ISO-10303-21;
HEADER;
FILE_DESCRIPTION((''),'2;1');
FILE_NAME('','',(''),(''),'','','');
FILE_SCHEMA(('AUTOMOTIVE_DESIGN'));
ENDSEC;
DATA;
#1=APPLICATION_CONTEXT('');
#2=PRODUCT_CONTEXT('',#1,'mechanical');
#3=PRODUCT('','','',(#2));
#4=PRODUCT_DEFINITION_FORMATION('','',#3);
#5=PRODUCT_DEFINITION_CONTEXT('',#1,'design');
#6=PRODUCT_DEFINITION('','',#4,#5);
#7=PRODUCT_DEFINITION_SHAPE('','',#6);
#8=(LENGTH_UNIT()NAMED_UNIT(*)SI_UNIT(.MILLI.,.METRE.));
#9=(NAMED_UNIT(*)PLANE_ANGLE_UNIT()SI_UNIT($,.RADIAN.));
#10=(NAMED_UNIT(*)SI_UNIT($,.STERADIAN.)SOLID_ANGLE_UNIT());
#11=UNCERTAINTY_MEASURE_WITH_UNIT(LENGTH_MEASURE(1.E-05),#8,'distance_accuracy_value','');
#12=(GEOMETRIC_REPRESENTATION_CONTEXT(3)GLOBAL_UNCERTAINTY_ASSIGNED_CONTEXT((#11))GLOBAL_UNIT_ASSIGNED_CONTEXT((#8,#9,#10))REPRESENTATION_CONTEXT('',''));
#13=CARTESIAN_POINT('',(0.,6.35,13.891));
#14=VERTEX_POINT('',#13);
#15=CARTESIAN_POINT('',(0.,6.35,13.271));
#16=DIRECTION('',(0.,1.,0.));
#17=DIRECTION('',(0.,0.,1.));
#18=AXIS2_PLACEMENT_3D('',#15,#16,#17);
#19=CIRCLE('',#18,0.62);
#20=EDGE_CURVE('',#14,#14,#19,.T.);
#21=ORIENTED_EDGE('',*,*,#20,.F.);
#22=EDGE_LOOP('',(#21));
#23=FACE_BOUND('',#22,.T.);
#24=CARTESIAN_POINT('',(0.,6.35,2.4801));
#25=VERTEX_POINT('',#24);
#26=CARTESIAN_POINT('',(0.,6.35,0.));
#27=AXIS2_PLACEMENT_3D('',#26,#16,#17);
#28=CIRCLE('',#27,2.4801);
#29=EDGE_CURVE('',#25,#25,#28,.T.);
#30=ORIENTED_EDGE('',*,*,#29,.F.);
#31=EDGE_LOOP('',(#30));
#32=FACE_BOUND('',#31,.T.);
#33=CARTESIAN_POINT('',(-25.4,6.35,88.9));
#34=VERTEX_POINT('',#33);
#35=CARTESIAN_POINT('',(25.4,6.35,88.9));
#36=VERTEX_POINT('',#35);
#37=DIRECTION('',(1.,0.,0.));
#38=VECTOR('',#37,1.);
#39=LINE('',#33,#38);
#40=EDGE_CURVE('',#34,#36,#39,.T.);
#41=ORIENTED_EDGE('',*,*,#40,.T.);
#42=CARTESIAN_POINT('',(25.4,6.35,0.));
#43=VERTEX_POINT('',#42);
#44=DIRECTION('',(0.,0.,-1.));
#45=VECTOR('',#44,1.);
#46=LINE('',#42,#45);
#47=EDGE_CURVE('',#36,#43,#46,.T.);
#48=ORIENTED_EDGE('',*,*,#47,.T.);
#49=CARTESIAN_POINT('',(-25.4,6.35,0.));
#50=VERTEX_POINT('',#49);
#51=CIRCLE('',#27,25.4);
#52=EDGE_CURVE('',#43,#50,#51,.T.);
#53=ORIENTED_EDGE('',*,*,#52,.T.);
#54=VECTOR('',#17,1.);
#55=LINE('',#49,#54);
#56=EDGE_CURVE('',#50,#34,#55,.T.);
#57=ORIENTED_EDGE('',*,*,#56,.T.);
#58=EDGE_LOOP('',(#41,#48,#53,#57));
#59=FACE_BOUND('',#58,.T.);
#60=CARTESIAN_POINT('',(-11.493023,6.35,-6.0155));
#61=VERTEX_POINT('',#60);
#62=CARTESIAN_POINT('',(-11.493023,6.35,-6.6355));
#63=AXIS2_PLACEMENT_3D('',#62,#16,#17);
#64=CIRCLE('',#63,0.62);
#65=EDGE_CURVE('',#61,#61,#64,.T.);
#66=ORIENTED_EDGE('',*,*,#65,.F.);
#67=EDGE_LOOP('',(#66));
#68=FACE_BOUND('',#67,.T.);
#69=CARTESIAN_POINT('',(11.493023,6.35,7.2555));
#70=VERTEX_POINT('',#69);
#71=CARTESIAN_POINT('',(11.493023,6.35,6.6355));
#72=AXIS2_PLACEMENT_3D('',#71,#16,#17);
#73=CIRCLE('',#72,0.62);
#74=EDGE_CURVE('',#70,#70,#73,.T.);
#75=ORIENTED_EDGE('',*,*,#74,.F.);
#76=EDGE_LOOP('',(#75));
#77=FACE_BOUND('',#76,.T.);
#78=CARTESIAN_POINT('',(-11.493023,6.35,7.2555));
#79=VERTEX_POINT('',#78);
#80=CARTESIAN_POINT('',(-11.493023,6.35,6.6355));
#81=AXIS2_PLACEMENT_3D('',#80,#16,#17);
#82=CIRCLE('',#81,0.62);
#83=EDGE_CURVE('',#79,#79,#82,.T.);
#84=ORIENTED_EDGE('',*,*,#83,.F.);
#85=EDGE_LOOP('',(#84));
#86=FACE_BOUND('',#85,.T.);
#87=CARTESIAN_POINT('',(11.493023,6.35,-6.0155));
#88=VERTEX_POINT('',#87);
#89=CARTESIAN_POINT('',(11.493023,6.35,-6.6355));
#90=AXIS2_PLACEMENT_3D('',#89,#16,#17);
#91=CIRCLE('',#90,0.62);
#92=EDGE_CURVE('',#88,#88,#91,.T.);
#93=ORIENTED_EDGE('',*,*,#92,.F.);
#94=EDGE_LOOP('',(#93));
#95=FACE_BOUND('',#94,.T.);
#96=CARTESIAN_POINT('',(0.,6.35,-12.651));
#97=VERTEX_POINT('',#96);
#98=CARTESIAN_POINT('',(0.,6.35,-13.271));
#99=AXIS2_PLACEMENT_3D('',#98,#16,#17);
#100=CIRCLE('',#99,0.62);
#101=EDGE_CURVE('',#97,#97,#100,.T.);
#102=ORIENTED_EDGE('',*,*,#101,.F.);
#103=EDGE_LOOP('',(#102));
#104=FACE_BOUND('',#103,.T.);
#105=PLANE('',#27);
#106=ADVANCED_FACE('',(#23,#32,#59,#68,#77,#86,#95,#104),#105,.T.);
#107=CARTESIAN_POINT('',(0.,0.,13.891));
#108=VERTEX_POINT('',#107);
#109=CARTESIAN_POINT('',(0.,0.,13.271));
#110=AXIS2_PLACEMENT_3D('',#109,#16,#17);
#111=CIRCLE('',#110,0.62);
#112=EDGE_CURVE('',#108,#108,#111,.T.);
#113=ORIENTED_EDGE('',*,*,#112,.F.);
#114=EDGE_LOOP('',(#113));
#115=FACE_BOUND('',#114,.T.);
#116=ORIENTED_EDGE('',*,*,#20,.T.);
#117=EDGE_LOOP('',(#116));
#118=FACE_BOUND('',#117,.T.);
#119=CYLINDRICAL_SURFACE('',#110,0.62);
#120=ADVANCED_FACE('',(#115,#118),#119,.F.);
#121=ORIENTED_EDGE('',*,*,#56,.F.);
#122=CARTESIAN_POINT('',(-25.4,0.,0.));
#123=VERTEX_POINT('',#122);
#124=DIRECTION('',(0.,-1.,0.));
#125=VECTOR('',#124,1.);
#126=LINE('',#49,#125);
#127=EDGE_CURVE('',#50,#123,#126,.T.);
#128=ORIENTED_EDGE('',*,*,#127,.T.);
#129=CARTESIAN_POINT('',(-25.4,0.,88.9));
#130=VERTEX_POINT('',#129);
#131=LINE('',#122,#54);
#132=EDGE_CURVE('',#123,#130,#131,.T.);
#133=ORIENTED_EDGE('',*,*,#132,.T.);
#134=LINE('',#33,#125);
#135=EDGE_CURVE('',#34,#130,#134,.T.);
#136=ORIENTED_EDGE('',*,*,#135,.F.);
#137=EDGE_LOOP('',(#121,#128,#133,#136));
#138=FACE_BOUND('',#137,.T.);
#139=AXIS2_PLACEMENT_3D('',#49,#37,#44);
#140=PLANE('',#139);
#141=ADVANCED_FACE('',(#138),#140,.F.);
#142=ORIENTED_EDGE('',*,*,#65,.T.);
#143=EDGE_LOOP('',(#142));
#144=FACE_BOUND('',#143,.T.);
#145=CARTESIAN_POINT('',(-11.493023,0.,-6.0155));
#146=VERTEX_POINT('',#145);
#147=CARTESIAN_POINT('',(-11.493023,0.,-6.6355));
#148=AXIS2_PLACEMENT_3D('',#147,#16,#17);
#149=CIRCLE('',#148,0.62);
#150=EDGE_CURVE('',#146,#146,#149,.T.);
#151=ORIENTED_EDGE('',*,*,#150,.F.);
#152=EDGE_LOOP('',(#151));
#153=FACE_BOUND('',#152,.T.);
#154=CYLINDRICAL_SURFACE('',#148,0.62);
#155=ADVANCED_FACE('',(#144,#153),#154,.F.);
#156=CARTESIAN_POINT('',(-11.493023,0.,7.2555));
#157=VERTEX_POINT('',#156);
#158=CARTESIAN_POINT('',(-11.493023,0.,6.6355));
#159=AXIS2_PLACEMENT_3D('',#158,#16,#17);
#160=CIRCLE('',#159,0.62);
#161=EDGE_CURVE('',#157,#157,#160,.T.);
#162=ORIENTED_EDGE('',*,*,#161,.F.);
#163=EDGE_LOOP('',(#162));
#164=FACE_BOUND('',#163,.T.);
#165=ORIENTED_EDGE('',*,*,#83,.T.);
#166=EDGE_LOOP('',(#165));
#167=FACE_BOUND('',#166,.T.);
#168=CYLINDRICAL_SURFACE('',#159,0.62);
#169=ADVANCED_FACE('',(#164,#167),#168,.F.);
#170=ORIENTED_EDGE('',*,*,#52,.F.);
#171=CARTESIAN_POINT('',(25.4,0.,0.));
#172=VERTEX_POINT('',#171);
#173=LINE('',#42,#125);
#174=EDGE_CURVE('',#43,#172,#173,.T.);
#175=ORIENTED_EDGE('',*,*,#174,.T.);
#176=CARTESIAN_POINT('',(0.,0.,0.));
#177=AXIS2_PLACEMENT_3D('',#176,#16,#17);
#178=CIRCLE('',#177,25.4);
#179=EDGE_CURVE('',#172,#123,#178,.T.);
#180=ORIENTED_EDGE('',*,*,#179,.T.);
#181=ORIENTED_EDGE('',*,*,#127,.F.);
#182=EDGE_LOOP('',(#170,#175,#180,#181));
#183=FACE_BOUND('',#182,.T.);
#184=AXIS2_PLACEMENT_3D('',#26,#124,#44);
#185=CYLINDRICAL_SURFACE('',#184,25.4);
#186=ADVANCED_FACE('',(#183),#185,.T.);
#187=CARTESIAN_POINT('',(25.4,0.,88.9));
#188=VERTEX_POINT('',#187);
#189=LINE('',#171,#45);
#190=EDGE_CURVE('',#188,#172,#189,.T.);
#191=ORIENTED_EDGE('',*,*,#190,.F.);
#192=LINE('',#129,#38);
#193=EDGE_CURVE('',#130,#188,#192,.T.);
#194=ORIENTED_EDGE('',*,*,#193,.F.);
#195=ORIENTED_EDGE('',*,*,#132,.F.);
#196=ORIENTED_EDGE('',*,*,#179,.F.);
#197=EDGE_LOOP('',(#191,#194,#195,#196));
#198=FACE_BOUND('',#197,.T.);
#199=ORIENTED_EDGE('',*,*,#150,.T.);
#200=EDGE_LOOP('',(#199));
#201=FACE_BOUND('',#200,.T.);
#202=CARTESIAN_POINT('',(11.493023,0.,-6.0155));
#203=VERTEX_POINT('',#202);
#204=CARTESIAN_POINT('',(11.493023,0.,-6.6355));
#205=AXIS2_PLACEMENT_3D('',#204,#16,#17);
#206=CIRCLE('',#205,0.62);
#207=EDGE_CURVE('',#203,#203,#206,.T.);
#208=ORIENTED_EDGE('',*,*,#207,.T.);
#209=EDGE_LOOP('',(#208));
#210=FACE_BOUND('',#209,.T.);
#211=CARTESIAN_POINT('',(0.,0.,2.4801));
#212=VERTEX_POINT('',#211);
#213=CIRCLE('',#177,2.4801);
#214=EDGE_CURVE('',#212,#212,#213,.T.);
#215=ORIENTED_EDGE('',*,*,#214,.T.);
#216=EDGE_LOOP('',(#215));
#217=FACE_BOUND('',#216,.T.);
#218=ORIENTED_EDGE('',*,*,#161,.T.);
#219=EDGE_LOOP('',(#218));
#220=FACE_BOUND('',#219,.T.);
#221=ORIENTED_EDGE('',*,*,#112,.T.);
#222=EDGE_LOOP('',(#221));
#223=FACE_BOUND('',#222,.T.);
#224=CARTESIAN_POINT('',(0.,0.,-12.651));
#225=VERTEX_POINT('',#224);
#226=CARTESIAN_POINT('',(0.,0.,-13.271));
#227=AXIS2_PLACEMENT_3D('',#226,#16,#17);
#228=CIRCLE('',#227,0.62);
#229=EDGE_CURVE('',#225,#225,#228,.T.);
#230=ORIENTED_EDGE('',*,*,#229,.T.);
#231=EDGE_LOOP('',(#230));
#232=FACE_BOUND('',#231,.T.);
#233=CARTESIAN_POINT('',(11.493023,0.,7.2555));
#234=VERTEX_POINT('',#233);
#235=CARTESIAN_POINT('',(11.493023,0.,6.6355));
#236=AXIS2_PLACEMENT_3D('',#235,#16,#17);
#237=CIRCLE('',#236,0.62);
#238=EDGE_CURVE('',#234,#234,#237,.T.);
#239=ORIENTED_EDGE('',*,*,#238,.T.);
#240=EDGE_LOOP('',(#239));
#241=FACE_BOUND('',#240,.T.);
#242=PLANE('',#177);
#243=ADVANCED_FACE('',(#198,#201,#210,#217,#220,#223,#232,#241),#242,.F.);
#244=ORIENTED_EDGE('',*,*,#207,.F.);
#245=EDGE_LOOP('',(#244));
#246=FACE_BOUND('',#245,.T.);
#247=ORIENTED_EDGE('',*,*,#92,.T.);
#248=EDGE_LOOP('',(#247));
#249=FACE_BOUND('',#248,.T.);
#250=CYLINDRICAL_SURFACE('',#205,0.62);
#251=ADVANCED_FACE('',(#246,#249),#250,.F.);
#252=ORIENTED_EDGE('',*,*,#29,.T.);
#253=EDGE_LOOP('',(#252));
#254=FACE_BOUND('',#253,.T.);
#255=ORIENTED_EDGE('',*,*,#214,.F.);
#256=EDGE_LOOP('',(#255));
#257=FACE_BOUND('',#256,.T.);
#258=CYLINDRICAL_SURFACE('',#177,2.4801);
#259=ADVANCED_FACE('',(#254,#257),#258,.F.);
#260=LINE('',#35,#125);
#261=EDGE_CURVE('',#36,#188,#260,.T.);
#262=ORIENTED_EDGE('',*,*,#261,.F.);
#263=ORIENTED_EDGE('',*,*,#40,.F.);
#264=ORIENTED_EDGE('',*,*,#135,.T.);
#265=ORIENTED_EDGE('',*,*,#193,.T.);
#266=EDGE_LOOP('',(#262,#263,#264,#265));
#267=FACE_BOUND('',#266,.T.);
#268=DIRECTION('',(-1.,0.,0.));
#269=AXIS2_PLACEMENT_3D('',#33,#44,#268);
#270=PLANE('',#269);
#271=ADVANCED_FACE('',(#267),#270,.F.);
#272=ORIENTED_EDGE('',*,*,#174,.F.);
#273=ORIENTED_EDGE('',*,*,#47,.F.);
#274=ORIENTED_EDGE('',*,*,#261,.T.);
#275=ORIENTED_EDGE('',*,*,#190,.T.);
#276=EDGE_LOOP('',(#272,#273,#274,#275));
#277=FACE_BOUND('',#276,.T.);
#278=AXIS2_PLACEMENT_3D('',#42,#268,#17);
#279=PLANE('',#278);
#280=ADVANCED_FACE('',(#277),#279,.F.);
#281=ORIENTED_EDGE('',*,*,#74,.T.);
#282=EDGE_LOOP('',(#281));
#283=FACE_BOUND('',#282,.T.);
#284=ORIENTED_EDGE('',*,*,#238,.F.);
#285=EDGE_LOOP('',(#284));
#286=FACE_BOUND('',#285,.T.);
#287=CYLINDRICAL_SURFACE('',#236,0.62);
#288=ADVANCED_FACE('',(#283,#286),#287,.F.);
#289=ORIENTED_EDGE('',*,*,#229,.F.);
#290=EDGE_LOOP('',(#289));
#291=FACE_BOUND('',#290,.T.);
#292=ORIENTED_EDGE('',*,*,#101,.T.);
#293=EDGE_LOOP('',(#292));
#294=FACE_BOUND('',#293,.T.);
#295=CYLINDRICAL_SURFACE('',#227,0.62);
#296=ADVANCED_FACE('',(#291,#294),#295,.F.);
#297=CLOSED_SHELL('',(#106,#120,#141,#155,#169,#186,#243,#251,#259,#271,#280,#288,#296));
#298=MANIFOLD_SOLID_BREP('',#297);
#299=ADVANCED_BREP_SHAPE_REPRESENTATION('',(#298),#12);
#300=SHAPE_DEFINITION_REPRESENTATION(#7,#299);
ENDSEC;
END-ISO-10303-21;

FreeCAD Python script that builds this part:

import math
import FreeCAD as App
import Part
import Sketcher
from FreeCAD import Vector
Q = App.Units.Quantity

doc = App.newDocument("Part")
params = doc.addObject("Spreadsheet::Sheet", "Params")
for row, (alias, value) in enumerate([
    ("sketch1_radius", "1 in"),
    ("sketch1_height", "3.5 in"),
    ("pad1_length", "0.25 in"),
    ("pocket1_length", "0.25 in"),
    ("pocket2_length", "0.25 in"),
], start=1):
    params.set(f"A{row}", alias)
    params.set(f"B{row}", "=" + value)
    params.setAlias(f"B{row}", alias)

body = doc.addObject("PartDesign::Body", "Body")

# Sketch on XZ plane
sketch1 = body.newObject("Sketcher::SketchObject", "Sketch")
sketch1.AttachmentSupport = (doc.getObject("XZ_Plane"), [""])
sketch1.MapMode = "FlatFace"
sketch1.addGeometry(Part.LineSegment(Vector(-25, 0, 0), Vector(-25, 89, 0)), False)
sketch1.addGeometry(Part.LineSegment(Vector(-25, 89, 0), Vector(25, 89, 0)), False)
sketch1.addGeometry(Part.LineSegment(Vector(25, 89, 0), Vector(25, 0, 0)), False)
sketch1.addGeometry(Part.ArcOfCircle(Part.Circle(Vector(0, 0, 0), Vector(0, 0, 1), 25), math.radians(180), math.radians(360)), False)
sketch1.addConstraint(Sketcher.Constraint("Coincident", 0, 2, 1, 1))
sketch1.addConstraint(Sketcher.Constraint("Coincident", 1, 2, 2, 1))
sketch1.addConstraint(Sketcher.Constraint("Tangent", 2, 2, 3, 2))
sketch1.addConstraint(Sketcher.Constraint("Tangent", 3, 1, 0, 1))
sketch1.addConstraint(Sketcher.Constraint("Vertical", 0))
sketch1.addConstraint(Sketcher.Constraint("Horizontal", 1))
sketch1.addConstraint(Sketcher.Constraint("Vertical", 2))
sketch1.addConstraint(Sketcher.Constraint("Coincident", 3, 3, -1, 1))
sketch1.addConstraint(Sketcher.Constraint("Radius", 3, Q("1 in")))
sketch1.addConstraint(Sketcher.Constraint("DistanceY", 0, 1, 0, 2, Q("3.5 in")))
sketch1.setExpression("Constraints[8]", "Params.sketch1_radius")
sketch1.setExpression("Constraints[9]", "Params.sketch1_height")
pad1 = body.newObject("PartDesign::Pad", "Pad")
pad1.Profile = sketch1
pad1.setExpression("Length", "Params.pad1_length")
pad1.Reversed = True

# Sketch on XZ plane
sketch2 = body.newObject("Sketcher::SketchObject", "Sketch001")
sketch2.AttachmentSupport = (doc.getObject("XZ_Plane"), [""])
sketch2.MapMode = "FlatFace"
sketch2.AttachmentOffset = App.Placement(Vector(0, 0, -0.25 * 25.4), App.Rotation())
sketch2.addGeometry(Part.Circle(Vector(0, -13.3, 0), Vector(0, 0, 1), 0.6), False)
sketch2.addGeometry(Part.Circle(Vector(0, 13.3, 0), Vector(0, 0, 1), 0.6), False)
sketch2.addGeometry(Part.Circle(Vector(-11.5, -6.6, 0), Vector(0, 0, 1), 0.6), False)
sketch2.addGeometry(Part.Circle(Vector(-11.5, 6.6, 0), Vector(0, 0, 1), 0.6), False)
sketch2.addGeometry(Part.Circle(Vector(11.5, -6.6, 0), Vector(0, 0, 1), 0.6), False)
sketch2.addGeometry(Part.Circle(Vector(11.5, 6.6, 0), Vector(0, 0, 1), 0.6), False)
sketch2.addConstraint(Sketcher.Constraint("Equal", 0, 1))
sketch2.addConstraint(Sketcher.Constraint("Equal", 1, 2))
sketch2.addConstraint(Sketcher.Constraint("Equal", 2, 3))
sketch2.addConstraint(Sketcher.Constraint("Equal", 3, 4))
sketch2.addConstraint(Sketcher.Constraint("Equal", 4, 5))
sketch2.addConstraint(Sketcher.Constraint("Symmetric", 0, 3, 1, 3, -1, 1))
sketch2.addConstraint(Sketcher.Constraint("Symmetric", 3, 3, 4, 3, -1, 1))
sketch2.addConstraint(Sketcher.Constraint("Symmetric", 2, 3, 5, 3, -1, 1))
sketch2.addConstraint(Sketcher.Constraint("Symmetric", 2, 3, 4, 3, -2))
sketch2.addConstraint(Sketcher.Constraint("PointOnObject", 0, 3, -2))
sketch2.addConstraint(Sketcher.Constraint("Diameter", 0, Q("1.24 mm")))
sketch2.addConstraint(Sketcher.Constraint("DistanceY", 0, 3, -1, 1, Q("13.271 mm")))
sketch2.addConstraint(Sketcher.Constraint("DistanceY", 2, 3, -1, 1, Q("6.6355 mm")))
sketch2.addConstraint(Sketcher.Constraint("DistanceX", 2, 3, -1, 1, Q("11.493023 mm")))
pocket1 = body.newObject("PartDesign::Pocket", "Pocket")
pocket1.Profile = sketch2
pocket1.setExpression("Length", "Params.pocket1_length")
pocket1.Reversed = True

# Sketch on XZ plane
sketch3 = body.newObject("Sketcher::SketchObject", "Sketch002")
sketch3.AttachmentSupport = (doc.getObject("XZ_Plane"), [""])
sketch3.MapMode = "FlatFace"
sketch3.AttachmentOffset = App.Placement(Vector(0, 0, -0.25 * 25.4), App.Rotation())
sketch3.addGeometry(Part.Circle(Vector(0, 0, 0), Vector(0, 0, 1), 2.5), False)
sketch3.addConstraint(Sketcher.Constraint("Coincident", 0, 3, -1, 1))
sketch3.addConstraint(Sketcher.Constraint("Diameter", 0, Q("4.9602 mm")))
pocket2 = body.newObject("PartDesign::Pocket", "Pocket001")
pocket2.Profile = sketch3
pocket2.setExpression("Length", "Params.pocket2_length")
pocket2.Reversed = True

doc.recompute()
